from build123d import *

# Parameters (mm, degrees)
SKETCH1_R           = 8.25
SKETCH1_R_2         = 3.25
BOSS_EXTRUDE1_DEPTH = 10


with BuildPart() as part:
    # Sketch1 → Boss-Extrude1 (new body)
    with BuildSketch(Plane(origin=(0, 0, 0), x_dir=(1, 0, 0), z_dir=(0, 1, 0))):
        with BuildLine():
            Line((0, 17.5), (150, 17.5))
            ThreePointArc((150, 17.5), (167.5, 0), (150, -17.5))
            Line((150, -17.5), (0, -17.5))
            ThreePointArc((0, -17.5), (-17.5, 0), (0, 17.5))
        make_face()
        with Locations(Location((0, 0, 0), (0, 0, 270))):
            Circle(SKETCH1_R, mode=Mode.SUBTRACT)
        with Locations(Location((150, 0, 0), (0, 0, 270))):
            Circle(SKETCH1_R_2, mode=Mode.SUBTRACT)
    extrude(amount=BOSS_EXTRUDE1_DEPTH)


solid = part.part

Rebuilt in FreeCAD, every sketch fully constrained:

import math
import FreeCAD as App
import Part
import Sketcher
from FreeCAD import Vector
Q = App.Units.Quantity

doc = App.newDocument("Part")
body = doc.addObject("PartDesign::Body", "Body")

# Sketch on XZ plane
sketch1 = doc.addObject("Sketcher::SketchObject", "Sketch")
body.addObject(sketch1)
sketch1.AttachmentSupport = (doc.XZ_Plane, [""])
sketch1.MapMode = "FlatFace"
sketch1.addGeometry(Part.LineSegment(Vector(150, -17.5, 0), Vector(0, -17.5, 0)), False)
sketch1.addGeometry(Part.ArcOfCircle(Part.Circle(Vector(0, 0, 0), Vector(0, 0, 1), 17.5), math.radians(90), math.radians(270)), False)
sketch1.addGeometry(Part.LineSegment(Vector(0, 17.5, 0), Vector(150, 17.5, 0)), False)
sketch1.addGeometry(Part.ArcOfCircle(Part.Circle(Vector(150, 0, 0), Vector(0, 0, 1), 17.5), math.radians(-90), math.radians(90)), False)
sketch1.addGeometry(Part.Circle(Vector(150, 0, 0), Vector(0, 0, 1), 3.25), False)
sketch1.addGeometry(Part.Circle(Vector(0, 0, 0), Vector(0, 0, 1), 8.25), False)
sketch1.addConstraint(Sketcher.Constraint("Tangent", 0, 2, 1, 2))
sketch1.addConstraint(Sketcher.Constraint("Tangent", 1, 1, 2, 1))
sketch1.addConstraint(Sketcher.Constraint("Tangent", 2, 2, 3, 2))
sketch1.addConstraint(Sketcher.Constraint("Tangent", 3, 1, 0, 1))
sketch1.addConstraint(Sketcher.Constraint("Horizontal", 0))
sketch1.addConstraint(Sketcher.Constraint("Horizontal", 2))
sketch1.addConstraint(Sketcher.Constraint("Coincident", 1, 3, -1, 1))
sketch1.addConstraint(Sketcher.Constraint("Coincident", 5, 3, -1, 1))
sketch1.addConstraint(Sketcher.Constraint("Coincident", 4, 3, 3, 3))
sketch1.addConstraint(Sketcher.Constraint("Diameter", 4, Q("6.5 mm")))
sketch1.addConstraint(Sketcher.Constraint("Diameter", 5, Q("16.5 mm")))
sketch1.addConstraint(Sketcher.Constraint("Radius", 1, Q("17.5 mm")))
sketch1.addConstraint(Sketcher.Constraint("DistanceX", 0, 2, 0, 1, Q("150 mm")))
pad1 = doc.addObject("PartDesign::Pad", "Pad")
body.addObject(pad1)
pad1.Profile = sketch1
pad1.Length = 10
pad1.Reversed = True

doc.recompute()
